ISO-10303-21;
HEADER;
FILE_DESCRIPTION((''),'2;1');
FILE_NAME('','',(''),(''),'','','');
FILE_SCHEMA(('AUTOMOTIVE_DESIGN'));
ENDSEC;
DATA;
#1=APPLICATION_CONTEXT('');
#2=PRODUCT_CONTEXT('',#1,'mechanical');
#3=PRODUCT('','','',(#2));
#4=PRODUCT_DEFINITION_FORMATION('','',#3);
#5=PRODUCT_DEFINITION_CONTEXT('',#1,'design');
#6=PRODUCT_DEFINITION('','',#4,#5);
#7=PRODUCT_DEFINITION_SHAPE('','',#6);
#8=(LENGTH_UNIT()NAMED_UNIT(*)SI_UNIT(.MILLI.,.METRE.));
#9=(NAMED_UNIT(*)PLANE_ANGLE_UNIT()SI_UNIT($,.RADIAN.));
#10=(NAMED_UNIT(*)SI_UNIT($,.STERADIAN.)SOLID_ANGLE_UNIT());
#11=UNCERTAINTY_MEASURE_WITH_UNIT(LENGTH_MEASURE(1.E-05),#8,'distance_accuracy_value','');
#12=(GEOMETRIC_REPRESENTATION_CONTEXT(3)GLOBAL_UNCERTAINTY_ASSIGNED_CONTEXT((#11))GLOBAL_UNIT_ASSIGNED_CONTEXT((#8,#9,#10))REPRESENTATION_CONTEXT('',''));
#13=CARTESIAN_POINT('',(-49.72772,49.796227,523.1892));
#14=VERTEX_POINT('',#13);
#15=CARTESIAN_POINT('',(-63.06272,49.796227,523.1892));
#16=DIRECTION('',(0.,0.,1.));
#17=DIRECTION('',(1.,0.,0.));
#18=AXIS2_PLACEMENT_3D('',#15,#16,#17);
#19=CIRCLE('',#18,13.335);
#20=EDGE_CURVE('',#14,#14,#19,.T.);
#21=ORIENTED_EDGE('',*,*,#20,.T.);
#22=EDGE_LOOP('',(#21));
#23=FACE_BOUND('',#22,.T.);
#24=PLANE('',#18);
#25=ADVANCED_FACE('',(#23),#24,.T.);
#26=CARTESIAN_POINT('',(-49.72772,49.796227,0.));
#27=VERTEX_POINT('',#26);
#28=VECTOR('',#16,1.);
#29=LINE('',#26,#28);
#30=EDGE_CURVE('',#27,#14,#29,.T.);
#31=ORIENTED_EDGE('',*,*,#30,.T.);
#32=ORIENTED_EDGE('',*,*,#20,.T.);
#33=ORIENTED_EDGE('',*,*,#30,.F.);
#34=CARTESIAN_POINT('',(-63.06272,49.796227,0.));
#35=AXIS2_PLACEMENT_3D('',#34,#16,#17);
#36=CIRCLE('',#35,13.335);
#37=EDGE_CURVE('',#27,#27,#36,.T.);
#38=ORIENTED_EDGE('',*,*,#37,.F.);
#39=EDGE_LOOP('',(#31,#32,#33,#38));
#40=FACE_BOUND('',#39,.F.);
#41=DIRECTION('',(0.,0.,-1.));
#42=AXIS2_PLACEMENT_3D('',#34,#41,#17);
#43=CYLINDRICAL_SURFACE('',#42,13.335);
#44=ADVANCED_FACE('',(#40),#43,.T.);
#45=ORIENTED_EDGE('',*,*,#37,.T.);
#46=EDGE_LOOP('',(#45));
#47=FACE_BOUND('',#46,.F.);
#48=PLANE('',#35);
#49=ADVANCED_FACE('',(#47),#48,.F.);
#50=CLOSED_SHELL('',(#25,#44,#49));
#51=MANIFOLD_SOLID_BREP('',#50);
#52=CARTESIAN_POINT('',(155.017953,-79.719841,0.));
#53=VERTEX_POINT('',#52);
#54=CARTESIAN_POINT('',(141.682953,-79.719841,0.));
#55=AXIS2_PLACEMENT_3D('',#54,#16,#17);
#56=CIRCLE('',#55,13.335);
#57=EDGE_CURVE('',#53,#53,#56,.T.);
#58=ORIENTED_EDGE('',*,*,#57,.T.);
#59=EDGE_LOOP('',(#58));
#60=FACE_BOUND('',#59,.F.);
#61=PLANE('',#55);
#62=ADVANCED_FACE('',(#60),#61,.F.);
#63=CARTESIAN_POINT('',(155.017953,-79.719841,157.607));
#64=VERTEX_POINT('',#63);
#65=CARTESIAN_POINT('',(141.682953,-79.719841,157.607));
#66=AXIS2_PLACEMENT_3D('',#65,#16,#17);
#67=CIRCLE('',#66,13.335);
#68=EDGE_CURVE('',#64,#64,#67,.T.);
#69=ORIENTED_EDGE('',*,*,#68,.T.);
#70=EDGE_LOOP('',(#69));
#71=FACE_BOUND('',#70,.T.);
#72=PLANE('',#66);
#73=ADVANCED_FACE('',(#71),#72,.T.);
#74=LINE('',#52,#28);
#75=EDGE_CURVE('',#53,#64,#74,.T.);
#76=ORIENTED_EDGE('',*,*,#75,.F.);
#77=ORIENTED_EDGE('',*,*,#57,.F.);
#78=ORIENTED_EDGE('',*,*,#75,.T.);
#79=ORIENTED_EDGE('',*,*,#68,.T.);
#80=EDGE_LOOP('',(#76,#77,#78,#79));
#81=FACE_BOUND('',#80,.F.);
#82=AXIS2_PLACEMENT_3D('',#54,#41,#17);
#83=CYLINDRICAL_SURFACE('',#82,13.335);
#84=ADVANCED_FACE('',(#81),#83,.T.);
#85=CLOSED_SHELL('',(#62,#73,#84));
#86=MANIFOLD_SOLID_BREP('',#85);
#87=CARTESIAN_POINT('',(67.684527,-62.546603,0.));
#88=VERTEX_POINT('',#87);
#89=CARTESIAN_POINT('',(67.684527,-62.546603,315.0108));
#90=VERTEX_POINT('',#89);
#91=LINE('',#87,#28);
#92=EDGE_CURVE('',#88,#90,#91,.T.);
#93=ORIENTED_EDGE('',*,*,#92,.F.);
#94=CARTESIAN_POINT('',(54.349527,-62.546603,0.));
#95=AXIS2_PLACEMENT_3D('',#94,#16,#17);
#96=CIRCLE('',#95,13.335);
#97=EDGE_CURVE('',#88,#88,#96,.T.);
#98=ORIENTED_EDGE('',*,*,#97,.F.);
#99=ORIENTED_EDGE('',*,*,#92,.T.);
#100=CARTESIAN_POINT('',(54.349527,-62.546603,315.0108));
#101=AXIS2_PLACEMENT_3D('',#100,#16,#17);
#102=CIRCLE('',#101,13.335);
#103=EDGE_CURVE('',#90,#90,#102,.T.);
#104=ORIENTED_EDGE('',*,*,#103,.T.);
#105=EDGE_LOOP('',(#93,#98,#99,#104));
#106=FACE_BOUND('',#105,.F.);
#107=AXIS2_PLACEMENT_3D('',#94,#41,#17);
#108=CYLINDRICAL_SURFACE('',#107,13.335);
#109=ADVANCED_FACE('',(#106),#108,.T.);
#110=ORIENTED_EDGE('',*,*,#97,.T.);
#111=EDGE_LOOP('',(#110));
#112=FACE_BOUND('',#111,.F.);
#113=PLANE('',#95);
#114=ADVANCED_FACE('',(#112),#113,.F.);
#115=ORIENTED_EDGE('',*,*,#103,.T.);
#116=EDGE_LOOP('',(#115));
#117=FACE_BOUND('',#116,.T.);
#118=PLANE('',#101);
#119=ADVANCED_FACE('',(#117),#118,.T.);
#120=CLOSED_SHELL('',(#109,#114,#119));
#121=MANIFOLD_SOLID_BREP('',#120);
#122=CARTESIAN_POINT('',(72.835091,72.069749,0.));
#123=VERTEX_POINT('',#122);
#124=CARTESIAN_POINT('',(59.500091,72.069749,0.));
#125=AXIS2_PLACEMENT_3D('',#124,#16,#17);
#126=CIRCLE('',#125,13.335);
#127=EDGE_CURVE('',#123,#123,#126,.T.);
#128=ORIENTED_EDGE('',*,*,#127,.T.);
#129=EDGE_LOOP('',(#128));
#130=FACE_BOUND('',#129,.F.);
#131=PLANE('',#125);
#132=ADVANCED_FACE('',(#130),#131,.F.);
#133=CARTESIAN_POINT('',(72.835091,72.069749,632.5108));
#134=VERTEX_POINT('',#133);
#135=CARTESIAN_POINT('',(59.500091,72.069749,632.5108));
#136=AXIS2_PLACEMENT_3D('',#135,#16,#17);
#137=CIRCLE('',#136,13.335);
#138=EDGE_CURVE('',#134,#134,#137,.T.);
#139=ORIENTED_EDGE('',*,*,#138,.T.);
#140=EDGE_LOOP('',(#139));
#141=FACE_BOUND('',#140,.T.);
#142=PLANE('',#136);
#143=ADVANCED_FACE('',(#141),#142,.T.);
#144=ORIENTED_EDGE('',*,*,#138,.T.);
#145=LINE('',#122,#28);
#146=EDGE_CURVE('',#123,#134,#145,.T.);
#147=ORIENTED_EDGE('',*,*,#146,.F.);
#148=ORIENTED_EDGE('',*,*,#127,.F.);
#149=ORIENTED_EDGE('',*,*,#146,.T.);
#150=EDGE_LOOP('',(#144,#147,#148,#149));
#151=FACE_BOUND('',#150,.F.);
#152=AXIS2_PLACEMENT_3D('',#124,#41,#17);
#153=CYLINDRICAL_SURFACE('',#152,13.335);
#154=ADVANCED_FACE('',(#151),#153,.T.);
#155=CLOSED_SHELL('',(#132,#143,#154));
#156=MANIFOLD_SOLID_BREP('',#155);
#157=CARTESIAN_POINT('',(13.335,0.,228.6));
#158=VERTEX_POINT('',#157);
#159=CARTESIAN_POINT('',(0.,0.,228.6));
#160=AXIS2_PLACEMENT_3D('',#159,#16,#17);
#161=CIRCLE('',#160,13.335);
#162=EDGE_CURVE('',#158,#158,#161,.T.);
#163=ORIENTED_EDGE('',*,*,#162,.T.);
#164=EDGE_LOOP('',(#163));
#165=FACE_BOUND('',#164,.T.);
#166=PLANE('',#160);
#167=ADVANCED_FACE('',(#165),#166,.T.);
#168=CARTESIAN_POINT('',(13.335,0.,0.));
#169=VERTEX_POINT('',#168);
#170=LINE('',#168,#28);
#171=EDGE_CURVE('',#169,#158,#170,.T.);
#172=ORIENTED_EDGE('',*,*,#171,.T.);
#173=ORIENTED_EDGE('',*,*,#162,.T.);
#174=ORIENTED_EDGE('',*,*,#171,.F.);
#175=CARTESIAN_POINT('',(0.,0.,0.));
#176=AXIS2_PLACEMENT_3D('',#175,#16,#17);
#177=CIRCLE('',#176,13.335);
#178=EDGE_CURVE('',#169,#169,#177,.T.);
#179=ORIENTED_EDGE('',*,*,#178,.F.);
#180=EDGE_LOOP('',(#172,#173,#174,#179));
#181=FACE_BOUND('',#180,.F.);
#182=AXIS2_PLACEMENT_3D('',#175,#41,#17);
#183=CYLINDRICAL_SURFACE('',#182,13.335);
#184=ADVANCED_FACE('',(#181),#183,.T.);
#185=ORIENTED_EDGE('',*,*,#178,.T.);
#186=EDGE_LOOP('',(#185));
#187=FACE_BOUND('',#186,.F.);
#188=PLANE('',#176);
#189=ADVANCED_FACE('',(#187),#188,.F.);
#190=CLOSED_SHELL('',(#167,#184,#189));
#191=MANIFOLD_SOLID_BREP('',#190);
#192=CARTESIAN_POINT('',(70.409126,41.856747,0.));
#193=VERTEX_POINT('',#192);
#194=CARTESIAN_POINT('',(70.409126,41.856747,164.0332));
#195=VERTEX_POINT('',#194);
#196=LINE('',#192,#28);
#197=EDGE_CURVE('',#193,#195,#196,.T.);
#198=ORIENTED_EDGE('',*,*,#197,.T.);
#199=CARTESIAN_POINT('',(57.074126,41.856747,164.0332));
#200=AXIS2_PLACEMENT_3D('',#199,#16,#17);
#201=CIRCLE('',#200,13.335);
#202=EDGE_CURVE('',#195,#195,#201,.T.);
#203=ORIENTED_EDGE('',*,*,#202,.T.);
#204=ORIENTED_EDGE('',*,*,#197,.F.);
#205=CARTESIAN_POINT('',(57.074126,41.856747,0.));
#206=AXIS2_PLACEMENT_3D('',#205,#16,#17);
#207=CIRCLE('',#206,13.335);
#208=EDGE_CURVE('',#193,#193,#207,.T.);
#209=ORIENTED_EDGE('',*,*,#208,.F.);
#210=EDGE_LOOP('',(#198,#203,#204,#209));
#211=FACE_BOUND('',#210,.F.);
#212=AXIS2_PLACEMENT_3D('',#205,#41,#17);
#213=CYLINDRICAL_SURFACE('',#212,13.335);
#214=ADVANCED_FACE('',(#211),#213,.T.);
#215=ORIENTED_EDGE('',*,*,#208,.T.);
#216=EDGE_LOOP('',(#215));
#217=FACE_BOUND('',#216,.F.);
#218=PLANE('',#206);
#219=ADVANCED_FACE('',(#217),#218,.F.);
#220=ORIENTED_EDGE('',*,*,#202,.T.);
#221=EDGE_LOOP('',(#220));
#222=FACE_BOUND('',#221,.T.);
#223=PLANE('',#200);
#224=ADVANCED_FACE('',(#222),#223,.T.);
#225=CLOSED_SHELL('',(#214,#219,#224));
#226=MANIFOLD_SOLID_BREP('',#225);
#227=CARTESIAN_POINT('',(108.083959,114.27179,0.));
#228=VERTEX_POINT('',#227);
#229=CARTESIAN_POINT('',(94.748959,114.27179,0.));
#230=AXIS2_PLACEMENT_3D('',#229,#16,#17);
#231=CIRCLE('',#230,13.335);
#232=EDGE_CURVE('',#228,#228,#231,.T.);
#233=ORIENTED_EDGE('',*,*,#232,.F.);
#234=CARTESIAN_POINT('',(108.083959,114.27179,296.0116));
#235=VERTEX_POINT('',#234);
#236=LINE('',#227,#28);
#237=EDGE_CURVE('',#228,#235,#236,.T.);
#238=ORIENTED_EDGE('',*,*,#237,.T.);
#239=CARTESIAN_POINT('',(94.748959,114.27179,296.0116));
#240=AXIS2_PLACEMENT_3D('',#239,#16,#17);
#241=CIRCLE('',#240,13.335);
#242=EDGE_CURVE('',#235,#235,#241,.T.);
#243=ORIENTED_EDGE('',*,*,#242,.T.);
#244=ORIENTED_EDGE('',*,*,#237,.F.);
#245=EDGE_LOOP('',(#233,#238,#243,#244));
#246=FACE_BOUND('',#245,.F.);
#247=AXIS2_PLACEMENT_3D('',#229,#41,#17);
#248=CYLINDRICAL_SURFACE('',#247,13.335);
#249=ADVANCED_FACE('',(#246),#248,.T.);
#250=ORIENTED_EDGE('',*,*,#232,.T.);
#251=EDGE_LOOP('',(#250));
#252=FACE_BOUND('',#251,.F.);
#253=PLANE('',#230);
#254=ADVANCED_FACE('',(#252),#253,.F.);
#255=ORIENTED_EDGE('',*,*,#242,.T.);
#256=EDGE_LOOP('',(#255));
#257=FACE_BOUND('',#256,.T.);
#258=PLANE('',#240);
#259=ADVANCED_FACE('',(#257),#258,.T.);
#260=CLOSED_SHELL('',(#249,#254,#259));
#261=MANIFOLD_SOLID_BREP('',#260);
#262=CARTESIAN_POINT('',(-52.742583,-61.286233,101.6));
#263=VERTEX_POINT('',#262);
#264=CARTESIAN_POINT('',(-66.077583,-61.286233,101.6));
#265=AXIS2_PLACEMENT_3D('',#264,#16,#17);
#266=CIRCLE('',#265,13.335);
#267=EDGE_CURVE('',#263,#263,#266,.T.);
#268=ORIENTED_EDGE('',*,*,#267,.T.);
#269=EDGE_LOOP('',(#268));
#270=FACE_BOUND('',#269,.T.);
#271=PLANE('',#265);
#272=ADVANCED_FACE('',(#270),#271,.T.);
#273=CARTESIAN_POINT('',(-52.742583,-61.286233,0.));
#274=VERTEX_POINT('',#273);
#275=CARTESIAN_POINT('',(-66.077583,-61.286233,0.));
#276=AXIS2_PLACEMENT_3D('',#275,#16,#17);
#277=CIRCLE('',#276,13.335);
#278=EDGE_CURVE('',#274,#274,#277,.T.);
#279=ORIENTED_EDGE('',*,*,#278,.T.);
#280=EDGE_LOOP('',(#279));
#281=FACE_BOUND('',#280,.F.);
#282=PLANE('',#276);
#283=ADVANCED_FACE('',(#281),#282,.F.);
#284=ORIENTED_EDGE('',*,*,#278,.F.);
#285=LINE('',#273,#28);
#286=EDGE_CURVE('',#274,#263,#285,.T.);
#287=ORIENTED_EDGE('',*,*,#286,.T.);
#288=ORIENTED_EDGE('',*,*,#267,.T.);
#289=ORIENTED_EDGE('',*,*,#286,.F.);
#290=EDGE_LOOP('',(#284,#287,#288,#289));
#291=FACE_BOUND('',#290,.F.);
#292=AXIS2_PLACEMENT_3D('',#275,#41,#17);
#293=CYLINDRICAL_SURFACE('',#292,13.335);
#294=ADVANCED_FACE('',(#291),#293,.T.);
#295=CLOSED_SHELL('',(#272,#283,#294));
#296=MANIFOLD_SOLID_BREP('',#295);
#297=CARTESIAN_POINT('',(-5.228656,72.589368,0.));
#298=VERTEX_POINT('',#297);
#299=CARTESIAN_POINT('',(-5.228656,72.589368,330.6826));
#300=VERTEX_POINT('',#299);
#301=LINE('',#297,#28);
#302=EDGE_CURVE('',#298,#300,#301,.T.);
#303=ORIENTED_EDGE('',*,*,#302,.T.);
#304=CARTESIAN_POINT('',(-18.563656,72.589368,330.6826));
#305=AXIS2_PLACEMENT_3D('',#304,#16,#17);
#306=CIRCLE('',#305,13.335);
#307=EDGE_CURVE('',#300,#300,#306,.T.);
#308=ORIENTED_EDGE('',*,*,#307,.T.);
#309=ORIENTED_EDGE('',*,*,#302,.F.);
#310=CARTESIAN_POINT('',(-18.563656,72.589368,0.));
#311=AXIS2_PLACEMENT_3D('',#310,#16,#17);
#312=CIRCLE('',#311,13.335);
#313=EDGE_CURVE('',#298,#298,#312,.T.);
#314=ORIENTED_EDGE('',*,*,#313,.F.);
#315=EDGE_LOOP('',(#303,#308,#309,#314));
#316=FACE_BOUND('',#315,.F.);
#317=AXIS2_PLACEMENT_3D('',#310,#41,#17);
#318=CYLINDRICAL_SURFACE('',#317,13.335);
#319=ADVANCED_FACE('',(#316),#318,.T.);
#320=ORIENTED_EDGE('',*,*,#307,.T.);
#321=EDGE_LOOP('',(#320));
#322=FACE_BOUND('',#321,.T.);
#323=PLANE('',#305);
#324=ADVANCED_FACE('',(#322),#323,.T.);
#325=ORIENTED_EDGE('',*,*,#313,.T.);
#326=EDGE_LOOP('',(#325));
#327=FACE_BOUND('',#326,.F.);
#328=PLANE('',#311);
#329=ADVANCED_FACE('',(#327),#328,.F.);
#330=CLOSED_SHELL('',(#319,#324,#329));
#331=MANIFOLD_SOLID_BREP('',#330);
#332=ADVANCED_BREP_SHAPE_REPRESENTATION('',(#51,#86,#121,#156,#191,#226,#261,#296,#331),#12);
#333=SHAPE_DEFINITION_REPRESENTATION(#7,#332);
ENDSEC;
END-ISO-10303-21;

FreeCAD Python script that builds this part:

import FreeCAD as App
import Part
import Sketcher
from FreeCAD import Vector
Q = App.Units.Quantity

doc = App.newDocument("Part")
body = doc.addObject("PartDesign::Body", "Body")

# Sketch on XY plane
sketch1 = body.newObject("Sketcher::SketchObject", "Sketch")
sketch1.AttachmentSupport = (doc.getObject("XY_Plane"), [""])
sketch1.MapMode = "FlatFace"
sketch1.addGeometry(Part.Circle(Vector(0, 0, 0), Vector(0, 0, 1), 13), False)
sketch1.addConstraint(Sketcher.Constraint("Coincident", 0, 3, -1, 1))
sketch1.addConstraint(Sketcher.Constraint("Diameter", 0, Q("1.05 in")))
pad1 = body.newObject("PartDesign::Pad", "Pad")
pad1.Profile = sketch1
pad1.Length = Q("9 in")
body2 = doc.addObject("PartDesign::Body", "Body001")

# Sketch on XY plane
sketch2 = body2.newObject("Sketcher::SketchObject", "Sketch001")
sketch2.AttachmentSupport = (doc.getObject("XY_Plane001"), [""])
sketch2.MapMode = "FlatFace"
sketch2.addGeometry(Part.Circle(Vector(-66, -61, 0), Vector(0, 0, 1), 13), False)
sketch2.addConstraint(Sketcher.Constraint("Diameter", 0, Q("1.05 in")))
sketch2.addConstraint(Sketcher.Constraint("DistanceX", 0, 3, -1, 1, Q("66.077583 mm")))
sketch2.addConstraint(Sketcher.Constraint("DistanceY", 0, 3, -1, 1, Q("61.286233 mm")))
pad2 = body2.newObject("PartDesign::Pad", "Pad001")
pad2.Profile = sketch2
pad2.Length = Q("4 in")
body3 = doc.addObject("PartDesign::Body", "Body002")

# Sketch on XY plane
sketch3 = body3.newObject("Sketcher::SketchObject", "Sketch002")
sketch3.AttachmentSupport = (doc.getObject("XY_Plane002"), [""])
sketch3.MapMode = "FlatFace"
sketch3.addGeometry(Part.Circle(Vector(54, -63, 0), Vector(0, 0, 1), 13), False)
sketch3.addConstraint(Sketcher.Constraint("Diameter", 0, Q("1.05 in")))
sketch3.addConstraint(Sketcher.Constraint("DistanceX", -1, 1, 0, 3, Q("54.349527 mm")))
sketch3.addConstraint(Sketcher.Constraint("DistanceY", 0, 3, -1, 1, Q("62.546603 mm")))
pad3 = body3.newObject("PartDesign::Pad", "Pad002")
pad3.Profile = sketch3
pad3.Length = Q("12.402 in")
body4 = doc.addObject("PartDesign::Body", "Body003")

# Sketch on XY plane
sketch4 = body4.newObject("Sketcher::SketchObject", "Sketch003")
sketch4.AttachmentSupport = (doc.getObject("XY_Plane003"), [""])
sketch4.MapMode = "FlatFace"
sketch4.addGeometry(Part.Circle(Vector(-63, 50, 0), Vector(0, 0, 1), 13), False)
sketch4.addConstraint(Sketcher.Constraint("Diameter", 0, Q("1.05 in")))
sketch4.addConstraint(Sketcher.Constraint("DistanceX", 0, 3, -1, 1, Q("63.06272 mm")))
sketch4.addConstraint(Sketcher.Constraint("DistanceY", -1, 1, 0, 3, Q("49.796227 mm")))
pad4 = body4.newObject("PartDesign::Pad", "Pad003")
pad4.Profile = sketch4
pad4.Length = Q("20.598 in")
body5 = doc.addObject("PartDesign::Body", "Body004")

# Sketch on XY plane
sketch5 = body5.newObject("Sketcher::SketchObject", "Sketch004")
sketch5.AttachmentSupport = (doc.getObject("XY_Plane004"), [""])
sketch5.MapMode = "FlatFace"
sketch5.addGeometry(Part.Circle(Vector(57, 42, 0), Vector(0, 0, 1), 13), False)
sketch5.addConstraint(Sketcher.Constraint("Diameter", 0, Q("1.05 in")))
sketch5.addConstraint(Sketcher.Constraint("DistanceX", -1, 1, 0, 3, Q("57.074126 mm")))
sketch5.addConstraint(Sketcher.Constraint("DistanceY", -1, 1, 0, 3, Q("41.856747 mm")))
pad5 = body5.newObject("PartDesign::Pad", "Pad004")
pad5.Profile = sketch5
pad5.Length = Q("6.458 in")
body6 = doc.addObject("PartDesign::Body", "Body005")

# Sketch on XY plane
sketch6 = body6.newObject("Sketcher::SketchObject", "Sketch005")
sketch6.AttachmentSupport = (doc.getObject("XY_Plane005"), [""])
sketch6.MapMode = "FlatFace"
sketch6.addGeometry(Part.Circle(Vector(95, 114, 0), Vector(0, 0, 1), 13), False)
sketch6.addConstraint(Sketcher.Constraint("Diameter", 0, Q("1.05 in")))
sketch6.addConstraint(Sketcher.Constraint("DistanceX", -1, 1, 0, 3, Q("94.748959 mm")))
sketch6.addConstraint(Sketcher.Constraint("DistanceY", -1, 1, 0, 3, Q("114.27179 mm")))
pad6 = body6.newObject("PartDesign::Pad", "Pad005")
pad6.Profile = sketch6
pad6.Length = Q("11.654 in")
body7 = doc.addObject("PartDesign::Body", "Body006")

# Sketch on XY plane
sketch7 = body7.newObject("Sketcher::SketchObject", "Sketch006")
sketch7.AttachmentSupport = (doc.getObject("XY_Plane006"), [""])
sketch7.MapMode = "FlatFace"
sketch7.addGeometry(Part.Circle(Vector(60, 72, 0), Vector(0, 0, 1), 13), False)
sketch7.addConstraint(Sketcher.Constraint("Diameter", 0, Q("1.05 in")))
sketch7.addConstraint(Sketcher.Constraint("DistanceX", -1, 1, 0, 3, Q("59.500091 mm")))
sketch7.addConstraint(Sketcher.Constraint("DistanceY", -1, 1, 0, 3, Q("72.069749 mm")))
pad7 = body7.newObject("PartDesign::Pad", "Pad006")
pad7.Profile = sketch7
pad7.Length = Q("24.902 in")
body8 = doc.addObject("PartDesign::Body", "Body007")

# Sketch on XY plane
sketch8 = body8.newObject("Sketcher::SketchObject", "Sketch007")
sketch8.AttachmentSupport = (doc.getObject("XY_Plane007"), [""])
sketch8.MapMode = "FlatFace"
sketch8.addGeometry(Part.Circle(Vector(-19, 73, 0), Vector(0, 0, 1), 13), False)
sketch8.addConstraint(Sketcher.Constraint("Diameter", 0, Q("1.05 in")))
sketch8.addConstraint(Sketcher.Constraint("DistanceX", 0, 3, -1, 1, Q("18.563656 mm")))
sketch8.addConstraint(Sketcher.Constraint("DistanceY", -1, 1, 0, 3, Q("72.589368 mm")))
pad8 = body8.newObject("PartDesign::Pad", "Pad007")
pad8.Profile = sketch8
pad8.Length = Q("13.019 in")
body9 = doc.addObject("PartDesign::Body", "Body008")

# Sketch on XY plane
sketch9 = body9.newObject("Sketcher::SketchObject", "Sketch008")
sketch9.AttachmentSupport = (doc.getObject("XY_Plane008"), [""])
sketch9.MapMode = "FlatFace"
sketch9.addGeometry(Part.Circle(Vector(142, -80, 0), Vector(0, 0, 1), 13), False)
sketch9.addConstraint(Sketcher.Constraint("Diameter", 0, Q("1.05 in")))
sketch9.addConstraint(Sketcher.Constraint("DistanceY", 0, 3, -1, 1, Q("79.719841 mm")))
sketch9.addConstraint(Sketcher.Constraint("DistanceX", -1, 1, 0, 3, Q("141.682953 mm")))
pad9 = body9.newObject("PartDesign::Pad", "Pad008")
pad9.Profile = sketch9
pad9.Length = Q("6.205 in")

doc.recompute()
